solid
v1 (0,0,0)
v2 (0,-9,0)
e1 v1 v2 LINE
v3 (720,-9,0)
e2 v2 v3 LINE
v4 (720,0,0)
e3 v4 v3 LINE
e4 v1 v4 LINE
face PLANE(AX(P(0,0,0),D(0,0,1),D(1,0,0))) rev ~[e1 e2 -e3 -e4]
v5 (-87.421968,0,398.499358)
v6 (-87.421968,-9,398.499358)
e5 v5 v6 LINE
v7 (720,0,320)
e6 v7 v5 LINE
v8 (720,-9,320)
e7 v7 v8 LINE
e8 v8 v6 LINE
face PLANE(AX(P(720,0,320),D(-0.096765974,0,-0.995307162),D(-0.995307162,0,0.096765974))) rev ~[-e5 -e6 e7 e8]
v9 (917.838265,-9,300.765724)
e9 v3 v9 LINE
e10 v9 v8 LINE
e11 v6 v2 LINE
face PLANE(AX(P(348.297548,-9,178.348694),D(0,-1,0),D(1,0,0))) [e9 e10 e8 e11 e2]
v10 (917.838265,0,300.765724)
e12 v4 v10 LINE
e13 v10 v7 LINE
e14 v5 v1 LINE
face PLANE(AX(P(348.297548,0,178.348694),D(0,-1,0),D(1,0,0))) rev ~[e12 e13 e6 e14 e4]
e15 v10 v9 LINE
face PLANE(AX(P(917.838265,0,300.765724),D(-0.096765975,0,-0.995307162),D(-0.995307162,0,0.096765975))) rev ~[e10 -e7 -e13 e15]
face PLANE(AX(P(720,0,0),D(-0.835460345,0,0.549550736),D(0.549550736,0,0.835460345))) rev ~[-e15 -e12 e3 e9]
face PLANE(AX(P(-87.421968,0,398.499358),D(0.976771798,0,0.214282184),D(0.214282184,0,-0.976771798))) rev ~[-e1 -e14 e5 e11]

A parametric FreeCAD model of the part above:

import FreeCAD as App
import Part
import Sketcher
Q = App.Units.Quantity

doc = App.newDocument("Part")
body = doc.addObject("PartDesign::Body", "Body")

# Sketch on XZ plane
sketch1 = body.newObject("Sketcher::SketchObject", "Sketch")
sketch1.AttachmentSupport = (doc.getObject("XZ_Plane"), [""])
sketch1.MapMode = "FlatFace"
sketch1.addGeometry(Part.LineSegment(App.Vector(0, 0, 0), App.Vector(720, 0, 0)), False)
sketch1.addGeometry(Part.LineSegment(App.Vector(720, 0, 0), App.Vector(918, 301, 0)), False)
sketch1.addGeometry(Part.LineSegment(App.Vector(918, 301, 0), App.Vector(720, 320, 0)), False)
sketch1.addGeometry(Part.LineSegment(App.Vector(720, 320, 0), App.Vector(-87, 398, 0)), False)
sketch1.addGeometry(Part.LineSegment(App.Vector(-87, 398, 0), App.Vector(0, 0, 0)), False)
sketch1.addConstraint(Sketcher.Constraint("Coincident", 0, 2, 1, 1))
sketch1.addConstraint(Sketcher.Constraint("Coincident", 1, 2, 2, 1))
sketch1.addConstraint(Sketcher.Constraint("Coincident", 2, 2, 3, 1))
sketch1.addConstraint(Sketcher.Constraint("Coincident", 3, 2, 4, 1))
sketch1.addConstraint(Sketcher.Constraint("Coincident", 4, 2, 0, 1))
sketch1.addConstraint(Sketcher.Constraint("Horizontal", 0))
sketch1.addConstraint(Sketcher.Constraint("Coincident", 4, 2, -1, 1))
sketch1.addConstraint(Sketcher.Constraint("Parallel", 2, 3))
sketch1.addConstraint(Sketcher.Constraint("Vertical", 0, 2, 2, 2))
sketch1.addConstraint(Sketcher.Constraint("DistanceX", 0, 1, 0, 2, Q("720 mm")))
sketch1.addConstraint(Sketcher.Constraint("Distance", 1, Q("360 mm")))
sketch1.addConstraint(Sketcher.Constraint("DistanceY", -1, 1, 2, 2, Q("320 mm")))
sketch1.addConstraint(Sketcher.Constraint("DistanceX", 3, 2, -1, 1, Q("87.421968 mm")))
sketch1.addConstraint(Sketcher.Constraint("Distance", 2, Q("198.771065 mm")))
pad1 = body.newObject("PartDesign::Pad", "Pad")
pad1.Profile = sketch1
pad1.Length = 9

doc.recompute()
